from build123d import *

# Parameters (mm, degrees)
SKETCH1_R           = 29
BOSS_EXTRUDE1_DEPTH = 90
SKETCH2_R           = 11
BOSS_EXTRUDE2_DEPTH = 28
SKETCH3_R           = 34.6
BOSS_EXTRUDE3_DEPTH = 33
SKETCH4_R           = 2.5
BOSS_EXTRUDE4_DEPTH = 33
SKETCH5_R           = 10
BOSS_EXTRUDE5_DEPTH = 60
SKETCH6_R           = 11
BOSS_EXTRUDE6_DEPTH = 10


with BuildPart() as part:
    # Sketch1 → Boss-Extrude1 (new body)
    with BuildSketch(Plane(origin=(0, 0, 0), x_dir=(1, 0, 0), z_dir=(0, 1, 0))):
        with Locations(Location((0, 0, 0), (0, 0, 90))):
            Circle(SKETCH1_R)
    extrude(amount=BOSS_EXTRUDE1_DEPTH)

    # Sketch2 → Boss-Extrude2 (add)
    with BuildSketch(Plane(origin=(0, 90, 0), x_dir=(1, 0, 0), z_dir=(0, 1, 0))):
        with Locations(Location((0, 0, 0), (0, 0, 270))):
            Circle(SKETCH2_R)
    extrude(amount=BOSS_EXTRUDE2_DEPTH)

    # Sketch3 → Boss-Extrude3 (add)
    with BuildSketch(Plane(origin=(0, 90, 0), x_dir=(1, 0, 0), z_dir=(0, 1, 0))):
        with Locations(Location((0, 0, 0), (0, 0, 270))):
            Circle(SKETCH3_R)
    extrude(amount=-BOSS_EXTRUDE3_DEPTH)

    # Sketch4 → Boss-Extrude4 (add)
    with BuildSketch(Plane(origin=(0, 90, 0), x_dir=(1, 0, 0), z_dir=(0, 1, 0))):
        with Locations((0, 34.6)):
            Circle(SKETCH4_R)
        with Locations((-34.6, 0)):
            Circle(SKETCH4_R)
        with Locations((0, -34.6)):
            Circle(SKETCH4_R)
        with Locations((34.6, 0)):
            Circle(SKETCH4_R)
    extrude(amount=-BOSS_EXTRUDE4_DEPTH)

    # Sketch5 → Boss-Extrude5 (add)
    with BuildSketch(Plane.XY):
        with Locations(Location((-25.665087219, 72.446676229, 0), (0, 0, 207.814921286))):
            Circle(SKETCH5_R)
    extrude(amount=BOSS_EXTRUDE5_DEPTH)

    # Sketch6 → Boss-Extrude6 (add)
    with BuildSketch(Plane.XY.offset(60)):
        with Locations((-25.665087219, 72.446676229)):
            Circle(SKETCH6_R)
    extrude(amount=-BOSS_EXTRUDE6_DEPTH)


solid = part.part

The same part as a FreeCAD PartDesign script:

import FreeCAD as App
import Part
import Sketcher
from FreeCAD import Vector
Q = App.Units.Quantity

doc = App.newDocument("Part")
params = doc.addObject("Spreadsheet::Sheet", "Params")
for row, (alias, value) in enumerate([
    ("sketch1_diameter", "58 mm"),
    ("pad1_length", "90 mm"),
    ("sketch2_diameter", "22 mm"),
    ("pad2_length", "28 mm"),
    ("sketch3_diameter", "69.2 mm"),
    ("pad3_length", "33 mm"),
    ("sketch4_diameter", "5 mm"),
    ("pad4_length", "33 mm"),
    ("sketch5_diameter", "20 mm"),
    ("pad5_length", "60 mm"),
    ("sketch6_diameter", "22 mm"),
    ("pad6_length", "10 mm"),
], start=1):
    params.set(f"A{row}", alias)
    params.set(f"B{row}", "=" + value)
    params.setAlias(f"B{row}", alias)

body = doc.addObject("PartDesign::Body", "Body")

sketch1 = doc.addObject("Sketcher::SketchObject", "Sketch")
body.addObject(sketch1)
sketch1.AttachmentSupport = (doc.XZ_Plane, [""])
sketch1.MapMode = "FlatFace"
sketch1.addGeometry(Part.Circle(Vector(0, 0, 0), Vector(0, 0, 1), 29), False)
sketch1.addConstraint([
    Sketcher.Constraint("Coincident", 0, 3, -1, 1),
    Sketcher.Constraint("Diameter", 0, Q("58 mm")),
])
sketch1.setExpression("Constraints[1]", "Params.sketch1_diameter")
pad1 = doc.addObject("PartDesign::Pad", "Pad")
body.addObject(pad1)
pad1.Profile = sketch1
pad1.setExpression("Length", "Params.pad1_length")
pad1.Reversed = True

sketch2 = doc.addObject("Sketcher::SketchObject", "Sketch001")
body.addObject(sketch2)
sketch2.AttachmentSupport = (doc.XZ_Plane, [""])
sketch2.MapMode = "FlatFace"
sketch2.AttachmentOffset = App.Placement(Vector(0, 0, -90), App.Rotation())
sketch2.addGeometry(Part.Circle(Vector(0, 0, 0), Vector(0, 0, 1), 11), False)
sketch2.addConstraint([
    Sketcher.Constraint("Coincident", 0, 3, -1, 1),
    Sketcher.Constraint("Diameter", 0, Q("22 mm")),
])
sketch2.setExpression("Constraints[1]", "Params.sketch2_diameter")
pad2 = doc.addObject("PartDesign::Pad", "Pad001")
body.addObject(pad2)
pad2.Profile = sketch2
pad2.setExpression("Length", "Params.pad2_length")
pad2.Reversed = True

sketch3 = doc.addObject("Sketcher::SketchObject", "Sketch002")
body.addObject(sketch3)
sketch3.AttachmentSupport = (doc.XZ_Plane, [""])
sketch3.MapMode = "FlatFace"
sketch3.AttachmentOffset = App.Placement(Vector(0, 0, -90), App.Rotation())
sketch3.addGeometry(Part.Circle(Vector(0, 0, 0), Vector(0, 0, 1), 34.6), False)
sketch3.addConstraint([
    Sketcher.Constraint("Coincident", 0, 3, -1, 1),
    Sketcher.Constraint("Diameter", 0, Q("69.2 mm")),
])
sketch3.setExpression("Constraints[1]", "Params.sketch3_diameter")
pad3 = doc.addObject("PartDesign::Pad", "Pad002")
body.addObject(pad3)
pad3.Profile = sketch3
pad3.setExpression("Length", "Params.pad3_length")

sketch4 = doc.addObject("Sketcher::SketchObject", "Sketch003")
body.addObject(sketch4)
sketch4.AttachmentSupport = (doc.XZ_Plane, [""])
sketch4.MapMode = "FlatFace"
sketch4.AttachmentOffset = App.Placement(Vector(0, 0, -90), App.Rotation())
sketch4.addGeometry([
    Part.Circle(Vector(0, -34.6, 0), Vector(0, 0, 1), 2.5),
    Part.Circle(Vector(-34.6, 0, 0), Vector(0, 0, 1), 2.5),
    Part.Circle(Vector(0, 34.6, 0), Vector(0, 0, 1), 2.5),
    Part.Circle(Vector(34.6, 0, 0), Vector(0, 0, 1), 2.5),
], False)
sketch4.addConstraint([
    Sketcher.Constraint("Equal", 0, 1),
    Sketcher.Constraint("Equal", 1, 2),
    Sketcher.Constraint("Equal", 2, 3),
    Sketcher.Constraint("Symmetric", 0, 3, 2, 3, -1, 1),
    Sketcher.Constraint("Symmetric", 1, 3, 3, 3, -1, 1),
    Sketcher.Constraint("PointOnObject", 0, 3, -2),
    Sketcher.Constraint("PointOnObject", 1, 3, -1),
    Sketcher.Constraint("Diameter", 0, Q("5 mm")),
    Sketcher.Constraint("DistanceY", 0, 3, -1, 1, Q("34.6 mm")),
    Sketcher.Constraint("DistanceX", 1, 3, -1, 1, Q("34.6 mm")),
])
sketch4.setExpression("Constraints[7]", "Params.sketch4_diameter")
pad4 = doc.addObject("PartDesign::Pad", "Pad003")
body.addObject(pad4)
pad4.Profile = sketch4
pad4.setExpression("Length", "Params.pad4_length")

sketch5 = doc.addObject("Sketcher::SketchObject", "Sketch004")
body.addObject(sketch5)
sketch5.AttachmentSupport = (doc.XY_Plane, [""])
sketch5.MapMode = "FlatFace"
sketch5.addGeometry(Part.Circle(Vector(-25.665087, 72.446676, 0), Vector(0, 0, 1), 10), False)
sketch5.addConstraint([
    Sketcher.Constraint("Diameter", 0, Q("20 mm")),
    Sketcher.Constraint("DistanceX", 0, 3, -1, 1, Q("25.665087 mm")),
    Sketcher.Constraint("DistanceY", -1, 1, 0, 3, Q("72.446676 mm")),
])
sketch5.setExpression("Constraints[0]", "Params.sketch5_diameter")
pad5 = doc.addObject("PartDesign::Pad", "Pad004")
body.addObject(pad5)
pad5.Profile = sketch5
pad5.setExpression("Length", "Params.pad5_length")

sketch6 = doc.addObject("Sketcher::SketchObject", "Sketch005")
body.addObject(sketch6)
sketch6.AttachmentSupport = (doc.XY_Plane, [""])
sketch6.MapMode = "FlatFace"
sketch6.AttachmentOffset = App.Placement(Vector(0, 0, 60), App.Rotation())
sketch6.addGeometry(Part.Circle(Vector(-25.665087, 72.446676, 0), Vector(0, 0, 1), 11), False)
sketch6.addConstraint([
    Sketcher.Constraint("Diameter", 0, Q("22 mm")),
    Sketcher.Constraint("DistanceX", 0, 3, -1, 1, Q("25.665087 mm")),
    Sketcher.Constraint("DistanceY", -1, 1, 0, 3, Q("72.446676 mm")),
])
sketch6.setExpression("Constraints[0]", "Params.sketch6_diameter")
pad6 = doc.addObject("PartDesign::Pad", "Pad005")
body.addObject(pad6)
pad6.Profile = sketch6
pad6.setExpression("Length", "Params.pad6_length")
pad6.Reversed = True

doc.recompute()
